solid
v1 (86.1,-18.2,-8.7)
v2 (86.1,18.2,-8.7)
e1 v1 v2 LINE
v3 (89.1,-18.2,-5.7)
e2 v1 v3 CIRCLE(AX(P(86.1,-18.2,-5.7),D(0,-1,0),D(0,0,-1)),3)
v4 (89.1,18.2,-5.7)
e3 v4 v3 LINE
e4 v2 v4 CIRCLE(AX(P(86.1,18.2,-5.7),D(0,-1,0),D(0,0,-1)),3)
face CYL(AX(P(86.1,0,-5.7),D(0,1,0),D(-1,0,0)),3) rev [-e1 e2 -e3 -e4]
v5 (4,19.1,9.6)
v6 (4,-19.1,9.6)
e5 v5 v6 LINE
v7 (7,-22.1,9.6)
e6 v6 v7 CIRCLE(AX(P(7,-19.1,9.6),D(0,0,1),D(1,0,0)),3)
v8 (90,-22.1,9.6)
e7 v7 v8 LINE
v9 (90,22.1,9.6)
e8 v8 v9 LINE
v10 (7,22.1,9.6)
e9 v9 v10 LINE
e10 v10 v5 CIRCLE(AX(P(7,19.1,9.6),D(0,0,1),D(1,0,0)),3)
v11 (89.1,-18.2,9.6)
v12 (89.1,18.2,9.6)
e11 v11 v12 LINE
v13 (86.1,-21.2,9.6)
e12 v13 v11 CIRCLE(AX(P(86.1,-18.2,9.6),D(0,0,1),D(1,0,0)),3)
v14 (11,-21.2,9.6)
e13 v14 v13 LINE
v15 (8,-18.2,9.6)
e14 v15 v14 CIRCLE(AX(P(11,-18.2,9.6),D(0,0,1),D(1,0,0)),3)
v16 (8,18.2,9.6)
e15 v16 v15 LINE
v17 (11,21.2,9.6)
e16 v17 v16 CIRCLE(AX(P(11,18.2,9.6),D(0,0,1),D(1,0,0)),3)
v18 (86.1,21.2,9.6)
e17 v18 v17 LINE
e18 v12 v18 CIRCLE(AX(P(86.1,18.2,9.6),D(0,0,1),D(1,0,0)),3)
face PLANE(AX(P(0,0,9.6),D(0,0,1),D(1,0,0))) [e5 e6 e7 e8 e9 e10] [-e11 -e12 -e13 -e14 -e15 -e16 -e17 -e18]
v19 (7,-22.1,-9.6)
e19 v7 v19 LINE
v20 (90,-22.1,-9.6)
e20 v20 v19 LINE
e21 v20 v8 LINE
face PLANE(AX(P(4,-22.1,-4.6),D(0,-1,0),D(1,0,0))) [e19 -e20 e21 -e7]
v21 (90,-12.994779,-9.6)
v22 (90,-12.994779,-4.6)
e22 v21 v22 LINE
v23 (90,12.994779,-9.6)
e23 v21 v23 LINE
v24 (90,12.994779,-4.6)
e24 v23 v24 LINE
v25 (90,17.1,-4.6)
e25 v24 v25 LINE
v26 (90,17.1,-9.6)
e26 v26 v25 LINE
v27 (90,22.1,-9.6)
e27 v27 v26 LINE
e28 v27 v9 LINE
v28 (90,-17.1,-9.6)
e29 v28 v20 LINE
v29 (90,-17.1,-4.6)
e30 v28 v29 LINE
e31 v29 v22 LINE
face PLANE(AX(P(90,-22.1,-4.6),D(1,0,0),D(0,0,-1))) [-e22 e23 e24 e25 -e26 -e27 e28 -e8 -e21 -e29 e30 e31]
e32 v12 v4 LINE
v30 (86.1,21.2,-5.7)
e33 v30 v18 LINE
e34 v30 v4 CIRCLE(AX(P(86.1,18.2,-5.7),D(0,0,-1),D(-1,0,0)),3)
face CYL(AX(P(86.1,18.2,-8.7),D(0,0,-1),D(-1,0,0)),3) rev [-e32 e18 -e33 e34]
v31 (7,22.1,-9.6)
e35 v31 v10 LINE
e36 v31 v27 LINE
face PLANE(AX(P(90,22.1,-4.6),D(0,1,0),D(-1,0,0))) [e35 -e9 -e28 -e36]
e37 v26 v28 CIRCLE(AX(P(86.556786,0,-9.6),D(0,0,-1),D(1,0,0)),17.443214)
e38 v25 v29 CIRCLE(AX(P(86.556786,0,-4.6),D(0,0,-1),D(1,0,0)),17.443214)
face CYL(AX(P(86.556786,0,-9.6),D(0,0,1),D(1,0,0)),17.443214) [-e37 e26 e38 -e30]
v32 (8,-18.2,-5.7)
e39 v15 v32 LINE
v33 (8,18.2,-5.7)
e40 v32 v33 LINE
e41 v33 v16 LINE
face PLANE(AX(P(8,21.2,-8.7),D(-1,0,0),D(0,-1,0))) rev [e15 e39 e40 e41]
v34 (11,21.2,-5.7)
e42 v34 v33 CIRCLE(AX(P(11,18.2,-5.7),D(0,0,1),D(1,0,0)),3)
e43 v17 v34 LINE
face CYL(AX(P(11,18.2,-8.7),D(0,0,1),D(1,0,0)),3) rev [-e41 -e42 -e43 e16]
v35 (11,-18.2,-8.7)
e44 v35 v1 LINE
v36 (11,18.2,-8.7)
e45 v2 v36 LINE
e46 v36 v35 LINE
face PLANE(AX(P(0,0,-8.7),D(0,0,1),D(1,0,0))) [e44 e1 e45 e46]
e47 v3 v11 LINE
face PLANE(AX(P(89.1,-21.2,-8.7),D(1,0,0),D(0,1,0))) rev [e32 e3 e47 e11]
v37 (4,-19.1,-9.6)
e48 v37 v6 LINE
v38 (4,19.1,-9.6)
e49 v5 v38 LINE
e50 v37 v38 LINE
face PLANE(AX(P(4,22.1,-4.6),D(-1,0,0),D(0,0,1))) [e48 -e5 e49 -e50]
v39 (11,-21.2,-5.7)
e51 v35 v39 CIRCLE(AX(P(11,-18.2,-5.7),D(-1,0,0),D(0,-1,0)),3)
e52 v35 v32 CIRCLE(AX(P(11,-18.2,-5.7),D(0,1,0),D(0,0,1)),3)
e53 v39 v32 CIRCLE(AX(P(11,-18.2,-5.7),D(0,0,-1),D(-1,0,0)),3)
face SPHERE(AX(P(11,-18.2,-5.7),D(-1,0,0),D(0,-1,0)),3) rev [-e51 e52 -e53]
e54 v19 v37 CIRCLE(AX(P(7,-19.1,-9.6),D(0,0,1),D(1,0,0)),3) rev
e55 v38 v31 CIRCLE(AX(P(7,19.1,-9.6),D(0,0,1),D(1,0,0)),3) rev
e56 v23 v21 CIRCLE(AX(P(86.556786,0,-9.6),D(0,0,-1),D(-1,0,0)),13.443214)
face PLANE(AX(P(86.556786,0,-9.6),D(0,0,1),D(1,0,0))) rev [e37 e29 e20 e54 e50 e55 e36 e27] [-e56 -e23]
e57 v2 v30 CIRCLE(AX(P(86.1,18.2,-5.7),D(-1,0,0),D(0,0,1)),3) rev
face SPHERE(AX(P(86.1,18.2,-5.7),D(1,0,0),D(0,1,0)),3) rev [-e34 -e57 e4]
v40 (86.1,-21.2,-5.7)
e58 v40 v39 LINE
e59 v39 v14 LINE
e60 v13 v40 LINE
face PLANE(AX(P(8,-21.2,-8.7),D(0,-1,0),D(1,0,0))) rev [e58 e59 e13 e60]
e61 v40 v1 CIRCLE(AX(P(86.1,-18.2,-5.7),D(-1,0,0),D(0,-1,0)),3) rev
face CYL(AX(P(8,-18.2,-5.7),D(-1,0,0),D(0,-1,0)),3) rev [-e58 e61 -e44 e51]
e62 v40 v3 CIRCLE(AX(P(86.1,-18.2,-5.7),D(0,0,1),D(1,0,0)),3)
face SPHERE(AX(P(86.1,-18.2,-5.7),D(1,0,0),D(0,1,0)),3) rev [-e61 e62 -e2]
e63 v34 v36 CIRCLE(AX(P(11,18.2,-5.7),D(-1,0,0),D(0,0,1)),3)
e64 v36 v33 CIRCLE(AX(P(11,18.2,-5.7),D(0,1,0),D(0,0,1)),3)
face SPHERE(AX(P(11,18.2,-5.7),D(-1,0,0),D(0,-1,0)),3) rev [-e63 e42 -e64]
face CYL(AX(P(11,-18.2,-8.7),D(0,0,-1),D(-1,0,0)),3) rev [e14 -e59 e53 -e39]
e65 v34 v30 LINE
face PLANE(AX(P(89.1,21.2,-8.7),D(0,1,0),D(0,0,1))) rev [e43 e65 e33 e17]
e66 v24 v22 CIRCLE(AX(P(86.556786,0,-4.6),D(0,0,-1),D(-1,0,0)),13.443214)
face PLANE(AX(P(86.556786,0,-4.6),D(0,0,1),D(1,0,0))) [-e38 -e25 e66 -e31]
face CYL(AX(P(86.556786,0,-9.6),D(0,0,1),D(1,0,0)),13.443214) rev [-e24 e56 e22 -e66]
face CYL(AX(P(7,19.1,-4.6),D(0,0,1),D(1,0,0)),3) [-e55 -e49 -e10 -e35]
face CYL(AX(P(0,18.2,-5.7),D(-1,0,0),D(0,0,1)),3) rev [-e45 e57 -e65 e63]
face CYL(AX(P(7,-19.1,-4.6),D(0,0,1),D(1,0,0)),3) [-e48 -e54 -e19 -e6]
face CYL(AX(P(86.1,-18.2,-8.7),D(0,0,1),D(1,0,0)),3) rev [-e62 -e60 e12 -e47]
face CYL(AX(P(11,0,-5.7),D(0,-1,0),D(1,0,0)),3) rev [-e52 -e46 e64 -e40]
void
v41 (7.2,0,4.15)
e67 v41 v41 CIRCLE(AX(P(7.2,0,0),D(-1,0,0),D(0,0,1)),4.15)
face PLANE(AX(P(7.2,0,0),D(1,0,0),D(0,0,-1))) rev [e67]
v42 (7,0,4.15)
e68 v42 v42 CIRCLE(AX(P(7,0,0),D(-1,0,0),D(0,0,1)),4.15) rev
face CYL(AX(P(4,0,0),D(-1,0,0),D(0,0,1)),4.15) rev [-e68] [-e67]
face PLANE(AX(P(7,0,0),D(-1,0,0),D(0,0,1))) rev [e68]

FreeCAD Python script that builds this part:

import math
import FreeCAD as App
import Part
import Sketcher
Q = App.Units.Quantity


def edges_at(feature, points):
    """Names of the edges that pass closest to the given points."""
    edges = feature.Shape.Edges
    near = lambda p: min(range(len(edges)), key=lambda i: edges[i].distToShape(Part.Vertex(*p))[0])
    return sorted({f"Edge{near(p) + 1}" for p in points})


def add_polygon(sketch, points):
    """Adds a closed chain of lines whose ends are joined by coincident constraints."""
    first, n = sketch.GeometryCount, len(points)
    for a, b in zip(points, points[1:] + points[:1]):
        sketch.addGeometry(Part.LineSegment(App.Vector(*a, 0), App.Vector(*b, 0)), False)
    for i in range(n):
        sketch.addConstraint(Sketcher.Constraint("Coincident", first + i, 2, first + (i + 1) % n, 1))

doc = App.newDocument("Part")
params = doc.addObject("Spreadsheet::Sheet", "Params")
for row, (alias, value) in enumerate([
    ("sketch1_width", "86 mm"),
    ("sketch1_height", "44.2 mm"),
    ("pad1_length", "14.2 mm"),
    ("sketch2_width", "86 mm"),
    ("sketch2_height", "5 mm"),
    ("sketch2_height2", "44.2 mm"),
    ("pad2_length", "5 mm"),
    ("sketch3_width", "81.1 mm"),
    ("sketch3_height", "42.4 mm"),
    ("pocket1_length", "18.3 mm"),
    ("sketch4_diameter", "8.3 mm"),
    ("hole_diameter", "8.3 mm"),
    ("hole_depth", "3.2 mm"),
    ("fillet_radius", "3 mm"),
    ("fillet2_radius", "3 mm"),
    ("fillet3_radius", "3 mm"),
    ("fillet4_radius", "3 mm"),
    ("fillet5_radius", "3 mm"),
    ("sketch5_diameter", "8.3 mm"),
    ("pad3_length", "3 mm"),
], start=1):
    params.set(f"A{row}", alias)
    params.set(f"B{row}", "=" + value)
    params.setAlias(f"B{row}", alias)

body = doc.addObject("PartDesign::Body", "Body")

sketch1 = body.newObject("Sketcher::SketchObject", "Sketch")
sketch1.AttachmentSupport = (doc.getObject("XY_Plane"), [""])
sketch1.MapMode = "FlatFace"
sketch1.AttachmentOffset = App.Placement(App.Vector(0, 0, 9.6), App.Rotation())
add_polygon(sketch1, [(4, 22.1), (4, -22.1), (90, -22.1), (90, 22.1)])
sketch1.addConstraint([
    Sketcher.Constraint("Vertical", 0),
    Sketcher.Constraint("Horizontal", 1),
    Sketcher.Constraint("Vertical", 2),
    Sketcher.Constraint("Horizontal", 3),
    Sketcher.Constraint("DistanceX", 1, 1, 1, 2, Q("86 mm")),
    Sketcher.Constraint("DistanceY", 0, 2, 0, 1, Q("44.2 mm")),
    Sketcher.Constraint("DistanceX", -1, 1, 0, 2, Q("4 mm")),
    Sketcher.Constraint("DistanceY", 0, 2, -1, 1, Q("22.1 mm")),
])
sketch1.setExpression("Constraints[8]", "Params.sketch1_width")
sketch1.setExpression("Constraints[9]", "Params.sketch1_height")
pad1 = body.newObject("PartDesign::Pad", "Pad")
pad1.Profile = sketch1
pad1.setExpression("Length", "Params.pad1_length")
pad1.Reversed = True

sketch2 = body.newObject("Sketcher::SketchObject", "Sketch001")
sketch2.AttachmentSupport = (doc.getObject("XY_Plane"), [""])
sketch2.MapMode = "FlatFace"
sketch2.AttachmentOffset = App.Placement(App.Vector(0, 0, -4.6), App.Rotation())
sketch2.addGeometry([
    Part.LineSegment(App.Vector(90, -17.1, 0), App.Vector(90, -22.1, 0)),
    Part.LineSegment(App.Vector(90, -22.1, 0), App.Vector(4, -22.1, 0)),
    Part.LineSegment(App.Vector(4, -22.1, 0), App.Vector(4, 22.1, 0)),
    Part.LineSegment(App.Vector(4, 22.1, 0), App.Vector(90, 22.1, 0)),
    Part.LineSegment(App.Vector(90, 22.1, 0), App.Vector(90, 17.1, 0)),
    Part.ArcOfCircle(Part.Circle(App.Vector(86.556786, 0, 0), App.Vector(0, 0, 1), 17.443214), math.radians(-78.615296), math.radians(78.615296)),
    Part.ArcOfCircle(Part.Circle(App.Vector(86.556786, 0, 0), App.Vector(0, 0, 1), 13.443214), math.radians(-75.15943), math.radians(75.15943)),
    Part.LineSegment(App.Vector(90, 12.994779, 0), App.Vector(90, -12.994779, 0)),
], False)
sketch2.addConstraint([
    Sketcher.Constraint("Coincident", 0, 2, 1, 1),
    Sketcher.Constraint("Coincident", 1, 2, 2, 1),
    Sketcher.Constraint("Coincident", 2, 2, 3, 1),
    Sketcher.Constraint("Coincident", 3, 2, 4, 1),
    Sketcher.Constraint("Coincident", 4, 2, 5, 2),
    Sketcher.Constraint("Coincident", 5, 1, 0, 1),
    Sketcher.Constraint("Coincident", 6, 1, 7, 2),
    Sketcher.Constraint("Coincident", 7, 1, 6, 2),
    Sketcher.Constraint("Vertical", 0),
    Sketcher.Constraint("Horizontal", 1),
    Sketcher.Constraint("Vertical", 2),
    Sketcher.Constraint("Horizontal", 3),
    Sketcher.Constraint("Vertical", 4),
    Sketcher.Constraint("Vertical", 7),
    Sketcher.Constraint("Coincident", 6, 3, 5, 3),
    Sketcher.Constraint("Symmetric", 0, 2, 3, 2, -1),
    Sketcher.Constraint("PointOnObject", 5, 3, -1),
    Sketcher.Constraint("Vertical", 5, 1, 6, 1),
    Sketcher.Constraint("DistanceX", 1, 2, 1, 1, Q("86 mm")),
    Sketcher.Constraint("DistanceY", 0, 2, 0, 1, Q("5 mm")),
    Sketcher.Constraint("DistanceY", 2, 1, 2, 2, Q("44.2 mm")),
    Sketcher.Constraint("DistanceX", -1, 1, 0, 2, Q("90 mm")),
    Sketcher.Constraint("Radius", 5, Q("17.443214 mm")),
    Sketcher.Constraint("Radius", 6, Q("13.443214 mm")),
])
sketch2.setExpression("Constraints[18]", "Params.sketch2_width")
sketch2.setExpression("Constraints[19]", "Params.sketch2_height")
sketch2.setExpression("Constraints[20]", "Params.sketch2_height2")
pad2 = body.newObject("PartDesign::Pad", "Pad001")
pad2.Profile = sketch2
pad2.setExpression("Length", "Params.pad2_length")
pad2.Reversed = True

sketch3 = body.newObject("Sketcher::SketchObject", "Sketch002")
sketch3.AttachmentSupport = (doc.getObject("XY_Plane"), [""])
sketch3.MapMode = "FlatFace"
sketch3.AttachmentOffset = App.Placement(App.Vector(0, 0, 9.6), App.Rotation())
add_polygon(sketch3, [(8, 21.2), (8, -21.2), (89.1, -21.2), (89.1, 21.2)])
sketch3.addConstraint([
    Sketcher.Constraint("Vertical", 0),
    Sketcher.Constraint("Horizontal", 1),
    Sketcher.Constraint("Vertical", 2),
    Sketcher.Constraint("Horizontal", 3),
    Sketcher.Constraint("DistanceX", 1, 1, 1, 2, Q("81.1 mm")),
    Sketcher.Constraint("DistanceY", 0, 2, 0, 1, Q("42.4 mm")),
    Sketcher.Constraint("DistanceX", -1, 1, 0, 2, Q("8 mm")),
    Sketcher.Constraint("DistanceY", 0, 2, -1, 1, Q("21.2 mm")),
])
sketch3.setExpression("Constraints[8]", "Params.sketch3_width")
sketch3.setExpression("Constraints[9]", "Params.sketch3_height")
pocket1 = body.newObject("PartDesign::Pocket", "Pocket")
pocket1.Profile = sketch3
pocket1.setExpression("Length", "Params.pocket1_length")

sketch4 = body.newObject("Sketcher::SketchObject", "Sketch003")
sketch4.AttachmentSupport = (doc.getObject("YZ_Plane"), [""])
sketch4.MapMode = "FlatFace"
sketch4.AttachmentOffset = App.Placement(App.Vector(0, 0, 4), App.Rotation())
sketch4.addGeometry(Part.Circle(App.Vector(0, 0, 0), App.Vector(0, 0, 1), 4.15), False)
sketch4.addConstraint([
    Sketcher.Constraint("Coincident", 0, 3, -1, 1),
    Sketcher.Constraint("Diameter", 0, Q("8.3 mm")),
])
sketch4.setExpression("Constraints[1]", "Params.sketch4_diameter")
doc.recompute()
hole = body.newObject("PartDesign::Hole", "Hole")
hole.Profile = sketch4
hole.ThreadType = "None"
hole.setExpression("Diameter", "Params.hole_diameter")
hole.DepthType = "Dimension"
hole.setExpression("Depth", "Params.hole_depth")
hole.DrillPoint = "Flat"
hole.Reversed = True
doc.recompute()

fillet = body.newObject("PartDesign::Fillet", "Fillet")
fillet.Base = (hole, edges_at(hole, [(4, -22.1, 0), (4, 22.1, 0)]))
fillet.setExpression("Radius", "Params.fillet_radius")
doc.recompute()

fillet2 = body.newObject("PartDesign::Fillet", "Fillet001")
fillet2.Base = (fillet, edges_at(fillet, [(48.55, -21.2, -8.7)]))
fillet2.setExpression("Radius", "Params.fillet2_radius")
doc.recompute()

fillet3 = body.newObject("PartDesign::Fillet", "Fillet002")
fillet3.Base = (fillet2, edges_at(fillet2, [(48.55, 21.2, -8.7)]))
fillet3.setExpression("Radius", "Params.fillet3_radius")
doc.recompute()

fillet4 = body.newObject("PartDesign::Fillet", "Fillet003")
fillet4.Base = (fillet3, edges_at(fillet3, [
    (8, -21.2, 1.95),
    (8, -20.321, -7.821),
    (8, 0, -8.7),
    (8, 21.2, 1.95),
    (8, 20.321, -7.821),
]))
fillet4.setExpression("Radius", "Params.fillet4_radius")
doc.recompute()

fillet5 = body.newObject("PartDesign::Fillet", "Fillet004")
fillet5.Base = (fillet4, edges_at(fillet4, [
    (89.1, -21.2, 1.95),
    (89.1, 0, -8.7),
    (89.1, -20.321, -7.821),
    (89.1, 21.2, 1.95),
    (89.1, 20.321, -7.821),
]))
fillet5.setExpression("Radius", "Params.fillet5_radius")

sketch5 = body.newObject("Sketcher::SketchObject", "Sketch004")
sketch5.AttachmentSupport = (doc.getObject("YZ_Plane"), [""])
sketch5.MapMode = "FlatFace"
sketch5.AttachmentOffset = App.Placement(App.Vector(0, 0, 7), App.Rotation())
sketch5.addGeometry(Part.Circle(App.Vector(0, 0, 0), App.Vector(0, 0, 1), 4.15), False)
sketch5.addConstraint([
    Sketcher.Constraint("Coincident", 0, 3, -1, 1),
    Sketcher.Constraint("Diameter", 0, Q("8.3 mm")),
])
sketch5.setExpression("Constraints[1]", "Params.sketch5_diameter")
pad3 = body.newObject("PartDesign::Pad", "Pad002")
pad3.Profile = sketch5
pad3.setExpression("Length", "Params.pad3_length")
pad3.Reversed = True

doc.recompute()
